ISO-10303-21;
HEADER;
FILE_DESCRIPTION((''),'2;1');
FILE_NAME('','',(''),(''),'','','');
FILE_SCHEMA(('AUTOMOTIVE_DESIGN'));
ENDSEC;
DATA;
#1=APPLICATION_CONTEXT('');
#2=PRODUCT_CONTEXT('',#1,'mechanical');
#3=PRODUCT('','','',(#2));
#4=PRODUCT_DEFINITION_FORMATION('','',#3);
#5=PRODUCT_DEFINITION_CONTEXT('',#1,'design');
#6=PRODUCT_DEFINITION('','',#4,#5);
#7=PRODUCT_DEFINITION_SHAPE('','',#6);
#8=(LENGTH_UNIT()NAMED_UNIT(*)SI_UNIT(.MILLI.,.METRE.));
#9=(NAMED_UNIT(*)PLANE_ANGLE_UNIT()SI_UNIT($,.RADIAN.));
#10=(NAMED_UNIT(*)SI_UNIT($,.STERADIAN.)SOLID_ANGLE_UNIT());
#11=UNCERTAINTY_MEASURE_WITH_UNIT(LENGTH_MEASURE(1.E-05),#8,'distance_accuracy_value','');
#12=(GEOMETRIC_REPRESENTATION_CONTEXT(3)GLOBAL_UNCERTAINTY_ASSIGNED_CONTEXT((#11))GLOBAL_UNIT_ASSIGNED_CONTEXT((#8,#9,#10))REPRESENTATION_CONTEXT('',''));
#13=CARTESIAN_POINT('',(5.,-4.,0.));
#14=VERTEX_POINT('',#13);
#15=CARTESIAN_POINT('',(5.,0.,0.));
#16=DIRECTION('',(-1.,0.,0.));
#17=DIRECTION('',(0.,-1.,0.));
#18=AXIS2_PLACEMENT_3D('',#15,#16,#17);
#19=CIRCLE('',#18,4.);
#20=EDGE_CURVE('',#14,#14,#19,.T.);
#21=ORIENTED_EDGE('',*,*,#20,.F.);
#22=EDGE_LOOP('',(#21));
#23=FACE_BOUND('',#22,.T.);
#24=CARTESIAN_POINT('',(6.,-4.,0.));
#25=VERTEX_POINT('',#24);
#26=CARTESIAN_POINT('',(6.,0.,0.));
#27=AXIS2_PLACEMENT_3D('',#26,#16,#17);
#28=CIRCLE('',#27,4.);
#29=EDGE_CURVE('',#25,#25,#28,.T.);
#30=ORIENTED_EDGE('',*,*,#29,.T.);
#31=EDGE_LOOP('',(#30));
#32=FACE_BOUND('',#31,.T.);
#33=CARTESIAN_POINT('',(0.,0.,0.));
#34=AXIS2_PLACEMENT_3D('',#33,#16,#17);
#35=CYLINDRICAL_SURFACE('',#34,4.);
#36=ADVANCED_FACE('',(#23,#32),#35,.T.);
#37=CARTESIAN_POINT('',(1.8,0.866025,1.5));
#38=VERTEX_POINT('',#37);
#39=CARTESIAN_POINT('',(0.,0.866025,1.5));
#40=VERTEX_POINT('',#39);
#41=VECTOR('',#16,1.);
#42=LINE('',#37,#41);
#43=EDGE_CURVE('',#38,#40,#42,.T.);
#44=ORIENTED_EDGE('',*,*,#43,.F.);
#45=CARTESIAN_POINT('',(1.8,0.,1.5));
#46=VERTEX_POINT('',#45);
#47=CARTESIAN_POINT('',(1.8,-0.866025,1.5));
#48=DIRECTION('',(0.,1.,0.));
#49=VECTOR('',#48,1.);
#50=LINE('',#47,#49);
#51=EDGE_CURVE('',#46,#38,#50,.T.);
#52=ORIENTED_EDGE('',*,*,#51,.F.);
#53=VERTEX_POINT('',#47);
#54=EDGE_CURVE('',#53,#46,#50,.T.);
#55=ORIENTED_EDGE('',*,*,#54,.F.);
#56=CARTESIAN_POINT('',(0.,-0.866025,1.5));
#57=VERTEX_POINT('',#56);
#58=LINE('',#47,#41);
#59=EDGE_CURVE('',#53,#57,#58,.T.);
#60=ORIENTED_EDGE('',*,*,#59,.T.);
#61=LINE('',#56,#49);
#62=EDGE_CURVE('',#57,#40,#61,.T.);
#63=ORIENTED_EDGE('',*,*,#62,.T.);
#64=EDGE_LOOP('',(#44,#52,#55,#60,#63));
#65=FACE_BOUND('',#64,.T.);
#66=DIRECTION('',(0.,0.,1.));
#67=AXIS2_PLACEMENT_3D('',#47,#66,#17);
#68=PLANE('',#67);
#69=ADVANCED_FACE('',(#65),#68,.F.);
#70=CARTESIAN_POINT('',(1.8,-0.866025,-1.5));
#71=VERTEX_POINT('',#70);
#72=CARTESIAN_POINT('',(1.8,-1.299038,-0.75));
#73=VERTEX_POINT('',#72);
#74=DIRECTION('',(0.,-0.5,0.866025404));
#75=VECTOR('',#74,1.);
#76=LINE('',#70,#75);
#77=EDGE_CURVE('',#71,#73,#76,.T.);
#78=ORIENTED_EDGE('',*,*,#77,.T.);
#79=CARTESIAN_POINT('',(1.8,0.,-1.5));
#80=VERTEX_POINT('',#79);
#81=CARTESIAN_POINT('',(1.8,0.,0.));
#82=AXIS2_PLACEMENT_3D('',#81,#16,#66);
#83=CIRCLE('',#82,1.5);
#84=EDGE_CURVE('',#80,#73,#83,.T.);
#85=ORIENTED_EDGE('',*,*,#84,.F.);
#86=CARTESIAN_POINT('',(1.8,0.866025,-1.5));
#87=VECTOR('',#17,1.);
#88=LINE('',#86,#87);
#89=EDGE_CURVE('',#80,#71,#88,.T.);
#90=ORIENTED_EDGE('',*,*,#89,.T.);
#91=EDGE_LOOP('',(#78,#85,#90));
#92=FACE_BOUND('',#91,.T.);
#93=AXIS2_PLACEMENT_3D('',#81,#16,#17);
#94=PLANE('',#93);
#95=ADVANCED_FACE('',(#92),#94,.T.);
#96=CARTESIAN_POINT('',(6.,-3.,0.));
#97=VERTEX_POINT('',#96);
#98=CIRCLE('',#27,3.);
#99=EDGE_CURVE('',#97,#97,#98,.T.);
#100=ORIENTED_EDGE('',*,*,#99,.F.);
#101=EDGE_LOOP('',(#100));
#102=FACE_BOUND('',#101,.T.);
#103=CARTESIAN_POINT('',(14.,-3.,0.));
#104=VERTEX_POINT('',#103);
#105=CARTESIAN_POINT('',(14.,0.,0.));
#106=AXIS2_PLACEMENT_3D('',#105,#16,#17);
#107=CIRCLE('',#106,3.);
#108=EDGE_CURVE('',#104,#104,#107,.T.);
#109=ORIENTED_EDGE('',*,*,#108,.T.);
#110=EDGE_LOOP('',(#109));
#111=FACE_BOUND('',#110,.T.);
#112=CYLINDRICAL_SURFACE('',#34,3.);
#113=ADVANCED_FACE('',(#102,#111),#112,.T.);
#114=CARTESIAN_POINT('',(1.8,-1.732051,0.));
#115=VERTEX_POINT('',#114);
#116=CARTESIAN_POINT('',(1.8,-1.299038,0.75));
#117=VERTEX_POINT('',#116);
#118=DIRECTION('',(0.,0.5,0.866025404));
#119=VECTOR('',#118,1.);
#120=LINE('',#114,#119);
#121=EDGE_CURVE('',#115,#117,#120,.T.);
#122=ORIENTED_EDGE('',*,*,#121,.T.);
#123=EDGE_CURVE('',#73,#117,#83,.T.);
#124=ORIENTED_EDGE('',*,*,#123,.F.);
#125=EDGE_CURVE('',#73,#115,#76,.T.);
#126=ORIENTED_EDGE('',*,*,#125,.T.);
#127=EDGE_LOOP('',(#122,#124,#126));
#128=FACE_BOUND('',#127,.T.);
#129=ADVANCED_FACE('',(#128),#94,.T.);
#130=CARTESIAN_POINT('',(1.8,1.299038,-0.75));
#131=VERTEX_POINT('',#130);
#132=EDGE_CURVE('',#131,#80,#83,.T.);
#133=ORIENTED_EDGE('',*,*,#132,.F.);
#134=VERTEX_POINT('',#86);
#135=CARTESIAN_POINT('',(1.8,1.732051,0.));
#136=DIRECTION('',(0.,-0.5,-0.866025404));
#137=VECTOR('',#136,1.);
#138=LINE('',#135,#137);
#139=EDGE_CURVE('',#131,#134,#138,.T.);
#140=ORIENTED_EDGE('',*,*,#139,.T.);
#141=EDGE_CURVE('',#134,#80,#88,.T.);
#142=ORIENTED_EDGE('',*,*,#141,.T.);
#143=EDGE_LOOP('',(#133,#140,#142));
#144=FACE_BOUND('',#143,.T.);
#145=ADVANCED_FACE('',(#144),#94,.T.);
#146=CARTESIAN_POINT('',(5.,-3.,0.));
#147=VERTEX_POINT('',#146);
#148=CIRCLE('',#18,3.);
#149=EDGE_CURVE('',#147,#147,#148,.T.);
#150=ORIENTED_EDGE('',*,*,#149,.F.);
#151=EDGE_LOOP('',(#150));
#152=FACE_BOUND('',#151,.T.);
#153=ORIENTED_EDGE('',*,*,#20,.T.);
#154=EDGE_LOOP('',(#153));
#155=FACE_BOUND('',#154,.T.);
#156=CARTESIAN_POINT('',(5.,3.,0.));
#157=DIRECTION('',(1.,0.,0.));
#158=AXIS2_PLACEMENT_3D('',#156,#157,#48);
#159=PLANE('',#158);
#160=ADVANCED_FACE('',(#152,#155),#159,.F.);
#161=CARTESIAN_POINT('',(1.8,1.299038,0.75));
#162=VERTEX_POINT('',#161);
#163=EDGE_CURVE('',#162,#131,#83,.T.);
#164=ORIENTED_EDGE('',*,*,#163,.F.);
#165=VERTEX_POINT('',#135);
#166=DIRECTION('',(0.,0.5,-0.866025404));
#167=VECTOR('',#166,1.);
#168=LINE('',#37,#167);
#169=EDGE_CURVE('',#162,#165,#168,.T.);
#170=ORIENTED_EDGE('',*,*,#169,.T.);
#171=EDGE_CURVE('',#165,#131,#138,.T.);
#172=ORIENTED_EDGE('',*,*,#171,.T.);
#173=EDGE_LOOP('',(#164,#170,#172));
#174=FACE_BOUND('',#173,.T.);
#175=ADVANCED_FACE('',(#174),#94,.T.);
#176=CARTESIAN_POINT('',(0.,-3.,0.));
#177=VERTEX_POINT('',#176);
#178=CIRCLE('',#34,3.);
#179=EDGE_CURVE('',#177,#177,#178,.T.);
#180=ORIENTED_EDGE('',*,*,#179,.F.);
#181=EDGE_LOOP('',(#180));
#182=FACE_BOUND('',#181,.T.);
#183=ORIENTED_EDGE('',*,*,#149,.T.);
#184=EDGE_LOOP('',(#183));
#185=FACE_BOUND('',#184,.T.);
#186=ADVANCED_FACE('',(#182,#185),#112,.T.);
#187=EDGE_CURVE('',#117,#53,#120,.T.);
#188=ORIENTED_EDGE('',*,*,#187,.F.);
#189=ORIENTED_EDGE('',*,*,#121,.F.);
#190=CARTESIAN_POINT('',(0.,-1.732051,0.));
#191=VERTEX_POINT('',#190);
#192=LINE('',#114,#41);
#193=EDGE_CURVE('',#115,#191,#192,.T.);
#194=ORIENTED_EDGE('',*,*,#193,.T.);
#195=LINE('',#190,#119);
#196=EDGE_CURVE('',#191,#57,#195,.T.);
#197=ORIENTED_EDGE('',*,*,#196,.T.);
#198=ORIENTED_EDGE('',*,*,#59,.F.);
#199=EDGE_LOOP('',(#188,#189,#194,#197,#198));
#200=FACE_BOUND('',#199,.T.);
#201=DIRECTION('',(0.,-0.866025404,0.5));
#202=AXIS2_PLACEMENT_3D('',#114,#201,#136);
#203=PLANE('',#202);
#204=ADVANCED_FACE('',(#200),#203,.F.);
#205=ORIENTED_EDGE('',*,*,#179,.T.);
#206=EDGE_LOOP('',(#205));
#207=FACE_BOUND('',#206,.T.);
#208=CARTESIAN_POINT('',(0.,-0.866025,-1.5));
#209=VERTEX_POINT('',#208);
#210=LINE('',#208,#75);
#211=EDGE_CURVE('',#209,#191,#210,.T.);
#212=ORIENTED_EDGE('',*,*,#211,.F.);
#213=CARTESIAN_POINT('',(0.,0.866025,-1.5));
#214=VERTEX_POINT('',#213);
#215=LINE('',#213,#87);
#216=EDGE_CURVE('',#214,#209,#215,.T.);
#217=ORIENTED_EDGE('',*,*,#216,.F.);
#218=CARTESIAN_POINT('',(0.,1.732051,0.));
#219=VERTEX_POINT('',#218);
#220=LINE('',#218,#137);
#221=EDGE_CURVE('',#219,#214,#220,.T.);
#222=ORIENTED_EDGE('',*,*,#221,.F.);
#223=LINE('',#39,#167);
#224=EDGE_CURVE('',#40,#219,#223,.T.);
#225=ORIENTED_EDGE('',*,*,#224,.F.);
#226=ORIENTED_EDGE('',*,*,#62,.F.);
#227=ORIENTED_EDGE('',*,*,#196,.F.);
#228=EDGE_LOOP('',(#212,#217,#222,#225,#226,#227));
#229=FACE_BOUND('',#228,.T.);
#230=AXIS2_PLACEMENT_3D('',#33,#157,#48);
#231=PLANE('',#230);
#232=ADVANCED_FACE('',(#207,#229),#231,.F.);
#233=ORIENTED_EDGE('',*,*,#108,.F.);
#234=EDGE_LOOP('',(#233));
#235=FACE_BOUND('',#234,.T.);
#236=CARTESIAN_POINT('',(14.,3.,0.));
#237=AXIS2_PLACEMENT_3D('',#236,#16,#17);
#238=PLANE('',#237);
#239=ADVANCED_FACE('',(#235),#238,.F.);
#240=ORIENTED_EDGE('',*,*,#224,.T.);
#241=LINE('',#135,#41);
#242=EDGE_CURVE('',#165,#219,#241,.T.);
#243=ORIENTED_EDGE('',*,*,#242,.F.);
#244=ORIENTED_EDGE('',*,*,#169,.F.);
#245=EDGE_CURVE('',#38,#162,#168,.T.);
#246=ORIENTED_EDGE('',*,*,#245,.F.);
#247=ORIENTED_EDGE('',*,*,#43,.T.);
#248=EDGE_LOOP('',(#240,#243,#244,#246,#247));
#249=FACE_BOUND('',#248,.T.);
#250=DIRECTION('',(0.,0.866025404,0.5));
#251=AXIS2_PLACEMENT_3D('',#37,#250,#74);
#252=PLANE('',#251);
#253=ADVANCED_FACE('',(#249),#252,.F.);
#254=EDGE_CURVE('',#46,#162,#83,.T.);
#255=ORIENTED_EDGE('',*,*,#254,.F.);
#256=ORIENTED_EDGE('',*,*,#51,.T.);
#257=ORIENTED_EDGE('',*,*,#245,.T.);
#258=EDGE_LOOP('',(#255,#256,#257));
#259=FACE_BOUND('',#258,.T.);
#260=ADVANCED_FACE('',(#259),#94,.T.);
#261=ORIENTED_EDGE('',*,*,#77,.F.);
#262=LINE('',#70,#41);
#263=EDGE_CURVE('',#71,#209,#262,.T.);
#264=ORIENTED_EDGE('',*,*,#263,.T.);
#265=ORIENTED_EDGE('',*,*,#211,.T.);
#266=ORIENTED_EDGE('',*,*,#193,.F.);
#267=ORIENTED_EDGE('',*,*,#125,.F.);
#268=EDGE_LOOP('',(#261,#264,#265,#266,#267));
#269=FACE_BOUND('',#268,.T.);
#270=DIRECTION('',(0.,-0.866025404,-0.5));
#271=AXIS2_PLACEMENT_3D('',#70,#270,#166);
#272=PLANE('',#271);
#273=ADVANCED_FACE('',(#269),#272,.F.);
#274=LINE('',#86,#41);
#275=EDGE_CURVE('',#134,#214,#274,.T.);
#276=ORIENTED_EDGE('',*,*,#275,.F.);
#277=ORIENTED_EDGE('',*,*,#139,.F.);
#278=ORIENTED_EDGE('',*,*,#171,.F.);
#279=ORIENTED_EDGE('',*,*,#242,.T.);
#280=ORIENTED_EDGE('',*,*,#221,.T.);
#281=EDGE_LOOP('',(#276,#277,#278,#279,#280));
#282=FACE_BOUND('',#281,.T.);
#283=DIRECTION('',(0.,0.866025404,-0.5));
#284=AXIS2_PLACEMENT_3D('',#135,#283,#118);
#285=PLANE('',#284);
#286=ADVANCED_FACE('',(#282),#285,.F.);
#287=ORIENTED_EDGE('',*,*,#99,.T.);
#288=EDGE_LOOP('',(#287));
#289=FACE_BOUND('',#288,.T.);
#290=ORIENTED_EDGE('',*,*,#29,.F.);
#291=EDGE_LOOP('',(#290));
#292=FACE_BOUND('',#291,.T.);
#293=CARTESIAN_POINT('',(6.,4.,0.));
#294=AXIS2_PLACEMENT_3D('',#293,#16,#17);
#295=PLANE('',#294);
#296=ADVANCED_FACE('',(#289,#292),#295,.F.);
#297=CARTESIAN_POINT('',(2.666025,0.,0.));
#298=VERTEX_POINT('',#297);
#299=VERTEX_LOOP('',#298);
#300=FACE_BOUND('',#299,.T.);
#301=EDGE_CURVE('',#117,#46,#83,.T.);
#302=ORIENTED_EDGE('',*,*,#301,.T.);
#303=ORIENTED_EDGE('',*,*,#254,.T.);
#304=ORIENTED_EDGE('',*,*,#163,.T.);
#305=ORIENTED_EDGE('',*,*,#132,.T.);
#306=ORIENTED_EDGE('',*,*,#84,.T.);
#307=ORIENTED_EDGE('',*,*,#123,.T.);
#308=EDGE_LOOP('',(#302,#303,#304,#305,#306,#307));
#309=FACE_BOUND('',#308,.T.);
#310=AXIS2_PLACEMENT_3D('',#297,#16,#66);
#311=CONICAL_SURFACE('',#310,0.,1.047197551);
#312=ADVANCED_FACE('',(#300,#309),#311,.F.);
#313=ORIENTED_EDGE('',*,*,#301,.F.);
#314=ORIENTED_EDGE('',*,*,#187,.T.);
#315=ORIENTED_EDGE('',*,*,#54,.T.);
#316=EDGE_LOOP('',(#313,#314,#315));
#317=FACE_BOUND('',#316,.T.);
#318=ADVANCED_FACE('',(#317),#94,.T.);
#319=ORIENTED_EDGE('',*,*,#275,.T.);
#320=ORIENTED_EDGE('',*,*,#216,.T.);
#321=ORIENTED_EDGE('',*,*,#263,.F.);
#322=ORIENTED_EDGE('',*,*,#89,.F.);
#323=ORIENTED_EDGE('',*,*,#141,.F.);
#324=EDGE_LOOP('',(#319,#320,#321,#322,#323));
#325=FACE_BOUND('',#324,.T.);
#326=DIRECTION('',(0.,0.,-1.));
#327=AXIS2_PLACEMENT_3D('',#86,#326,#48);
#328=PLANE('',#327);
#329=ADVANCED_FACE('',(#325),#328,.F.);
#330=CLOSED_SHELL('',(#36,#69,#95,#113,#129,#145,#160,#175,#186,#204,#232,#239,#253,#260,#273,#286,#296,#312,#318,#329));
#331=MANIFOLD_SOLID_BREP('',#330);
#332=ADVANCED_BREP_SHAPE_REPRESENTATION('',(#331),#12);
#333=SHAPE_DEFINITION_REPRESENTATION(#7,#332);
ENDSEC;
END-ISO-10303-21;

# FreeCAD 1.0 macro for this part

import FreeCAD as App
import Part
import Sketcher
from FreeCAD import Vector
Q = App.Units.Quantity

doc = App.newDocument("Part")
body = doc.addObject("PartDesign::Body", "Body")

# Sketch on XY plane
sketch1 = doc.addObject("Sketcher::SketchObject", "Sketch")
body.addObject(sketch1)
sketch1.AttachmentSupport = (doc.XY_Plane, [""])
sketch1.MapMode = "FlatFace"
sketch1.addGeometry([
    Part.LineSegment(Vector(0, 3, 0), Vector(0, 0, 0)),  # 0
    Part.LineSegment(Vector(0, 0, 0), Vector(14, 0, 0)),  # 1
    Part.LineSegment(Vector(14, 0, 0), Vector(14, 3, 0)),  # 2
    Part.LineSegment(Vector(14, 3, 0), Vector(6, 3, 0)),  # 3
    Part.LineSegment(Vector(6, 3, 0), Vector(6, 4, 0)),  # 4
    Part.LineSegment(Vector(6, 4, 0), Vector(5, 4, 0)),  # 5
    Part.LineSegment(Vector(5, 4, 0), Vector(5, 3, 0)),  # 6
    Part.LineSegment(Vector(5, 3, 0), Vector(0, 3, 0)),  # 7
], False)
sketch1.addConstraint([
    Sketcher.Constraint("Coincident", 0, 2, 1, 1),
    Sketcher.Constraint("Coincident", 1, 2, 2, 1),
    Sketcher.Constraint("Coincident", 2, 2, 3, 1),
    Sketcher.Constraint("Coincident", 3, 2, 4, 1),
    Sketcher.Constraint("Coincident", 4, 2, 5, 1),
    Sketcher.Constraint("Coincident", 5, 2, 6, 1),
    Sketcher.Constraint("Coincident", 6, 2, 7, 1),
    Sketcher.Constraint("Coincident", 7, 2, 0, 1),
    Sketcher.Constraint("Vertical", 0),
    Sketcher.Constraint("Horizontal", 1),
    Sketcher.Constraint("Vertical", 2),
    Sketcher.Constraint("Horizontal", 3),
    Sketcher.Constraint("Vertical", 4),
    Sketcher.Constraint("Horizontal", 5),
    Sketcher.Constraint("Vertical", 6),
    Sketcher.Constraint("Horizontal", 7),
    Sketcher.Constraint("Coincident", 0, 2, -1, 1),
    Sketcher.Constraint("Horizontal", 3, 2, 6, 2),
    Sketcher.Constraint("Equal", 5, 4),
    Sketcher.Constraint("DistanceX", 1, 1, 1, 2, 14.0),
    Sketcher.Constraint("DistanceX", 3, 2, 3, 1, 8.0),
    Sketcher.Constraint("DistanceX", 5, 2, 5, 1, 1.0),
    Sketcher.Constraint("DistanceY", 0, 2, 0, 1, 3.0),
])
revolution = doc.addObject("PartDesign::Revolution", "Revolution")
body.addObject(revolution)
revolution.Profile = sketch1
revolution.ReferenceAxis = (sketch1, ["H_Axis"])
revolution.Angle = 360

# Sketch on XY plane
sketch2 = doc.addObject("Sketcher::SketchObject", "Sketch001")
body.addObject(sketch2)
sketch2.AttachmentSupport = (doc.XY_Plane, [""])
sketch2.MapMode = "FlatFace"
sketch2.addGeometry([
    Part.LineSegment(Vector(0, 1.5, 0), Vector(0, 0, 0)),
    Part.LineSegment(Vector(0, 0, 0), Vector(2.7, 0, 0)),
    Part.LineSegment(Vector(2.7, 0, 0), Vector(1.8, 1.5, 0)),
    Part.LineSegment(Vector(1.8, 1.5, 0), Vector(0, 1.5, 0)),
], False)
sketch2.addConstraint([
    Sketcher.Constraint("Coincident", 0, 2, 1, 1),
    Sketcher.Constraint("Coincident", 1, 2, 2, 1),
    Sketcher.Constraint("Coincident", 2, 2, 3, 1),
    Sketcher.Constraint("Coincident", 3, 2, 0, 1),
    Sketcher.Constraint("Vertical", 0),
    Sketcher.Constraint("Horizontal", 1),
    Sketcher.Constraint("Horizontal", 3),
    Sketcher.Constraint("Coincident", 0, 2, -1, 1),
    Sketcher.Constraint("Angle", 2, Q("120 deg")),
    Sketcher.Constraint("DistanceX", 3, 2, 3, 1, 1.8),
    Sketcher.Constraint("DistanceY", 0, 2, 0, 1, 1.5),
])
groove = doc.addObject("PartDesign::Groove", "Groove")
body.addObject(groove)
groove.Profile = sketch2
groove.ReferenceAxis = (sketch2, ["H_Axis"])
groove.Angle = 360

# Sketch on YZ plane
sketch3 = doc.addObject("Sketcher::SketchObject", "Sketch002")
body.addObject(sketch3)
sketch3.AttachmentSupport = (doc.YZ_Plane, [""])
sketch3.MapMode = "FlatFace"
sketch3.addGeometry([
    Part.LineSegment(Vector(1.7, 0, 0), Vector(0.9, -1.5, 0)),  # 0
    Part.LineSegment(Vector(0.9, -1.5, 0), Vector(-0.9, -1.5, 0)),  # 1
    Part.LineSegment(Vector(-0.9, -1.5, 0), Vector(-1.7, 0, 0)),  # 2
    Part.LineSegment(Vector(-1.7, 0, 0), Vector(-0.9, 1.5, 0)),  # 3
    Part.LineSegment(Vector(-0.9, 1.5, 0), Vector(0.9, 1.5, 0)),  # 4
    Part.LineSegment(Vector(0.9, 1.5, 0), Vector(1.7, 0, 0)),  # 5
], False)
sketch3.addConstraint([
    Sketcher.Constraint("Coincident", 0, 2, 1, 1),
    Sketcher.Constraint("Coincident", 1, 2, 2, 1),
    Sketcher.Constraint("Coincident", 2, 2, 3, 1),
    Sketcher.Constraint("Coincident", 3, 2, 4, 1),
    Sketcher.Constraint("Coincident", 4, 2, 5, 1),
    Sketcher.Constraint("Coincident", 5, 2, 0, 1),
    Sketcher.Constraint("Horizontal", 1),
    Sketcher.Constraint("Horizontal", 4),
    Sketcher.Constraint("Symmetric", 0, 2, 3, 2, -1, 1),
    Sketcher.Constraint("Symmetric", 2, 2, 5, 2, -1, 1),
    Sketcher.Constraint("PointOnObject", 2, 2, -1),
    Sketcher.Constraint("Parallel", 2, 5),
    Sketcher.Constraint("Vertical", 1, 2, 3, 2),
    Sketcher.Constraint("Angle", 0, Q("-120 deg")),
    Sketcher.Constraint("DistanceY", 1, 2, 3, 2, 3.0),
    Sketcher.Constraint("DistanceX", 1, 2, 1, 1, 1.732051),
])
pocket1 = doc.addObject("PartDesign::Pocket", "Pocket")
body.addObject(pocket1)
pocket1.Profile = sketch3
pocket1.Length = 1.8
pocket1.Reversed = True

doc.recompute()
